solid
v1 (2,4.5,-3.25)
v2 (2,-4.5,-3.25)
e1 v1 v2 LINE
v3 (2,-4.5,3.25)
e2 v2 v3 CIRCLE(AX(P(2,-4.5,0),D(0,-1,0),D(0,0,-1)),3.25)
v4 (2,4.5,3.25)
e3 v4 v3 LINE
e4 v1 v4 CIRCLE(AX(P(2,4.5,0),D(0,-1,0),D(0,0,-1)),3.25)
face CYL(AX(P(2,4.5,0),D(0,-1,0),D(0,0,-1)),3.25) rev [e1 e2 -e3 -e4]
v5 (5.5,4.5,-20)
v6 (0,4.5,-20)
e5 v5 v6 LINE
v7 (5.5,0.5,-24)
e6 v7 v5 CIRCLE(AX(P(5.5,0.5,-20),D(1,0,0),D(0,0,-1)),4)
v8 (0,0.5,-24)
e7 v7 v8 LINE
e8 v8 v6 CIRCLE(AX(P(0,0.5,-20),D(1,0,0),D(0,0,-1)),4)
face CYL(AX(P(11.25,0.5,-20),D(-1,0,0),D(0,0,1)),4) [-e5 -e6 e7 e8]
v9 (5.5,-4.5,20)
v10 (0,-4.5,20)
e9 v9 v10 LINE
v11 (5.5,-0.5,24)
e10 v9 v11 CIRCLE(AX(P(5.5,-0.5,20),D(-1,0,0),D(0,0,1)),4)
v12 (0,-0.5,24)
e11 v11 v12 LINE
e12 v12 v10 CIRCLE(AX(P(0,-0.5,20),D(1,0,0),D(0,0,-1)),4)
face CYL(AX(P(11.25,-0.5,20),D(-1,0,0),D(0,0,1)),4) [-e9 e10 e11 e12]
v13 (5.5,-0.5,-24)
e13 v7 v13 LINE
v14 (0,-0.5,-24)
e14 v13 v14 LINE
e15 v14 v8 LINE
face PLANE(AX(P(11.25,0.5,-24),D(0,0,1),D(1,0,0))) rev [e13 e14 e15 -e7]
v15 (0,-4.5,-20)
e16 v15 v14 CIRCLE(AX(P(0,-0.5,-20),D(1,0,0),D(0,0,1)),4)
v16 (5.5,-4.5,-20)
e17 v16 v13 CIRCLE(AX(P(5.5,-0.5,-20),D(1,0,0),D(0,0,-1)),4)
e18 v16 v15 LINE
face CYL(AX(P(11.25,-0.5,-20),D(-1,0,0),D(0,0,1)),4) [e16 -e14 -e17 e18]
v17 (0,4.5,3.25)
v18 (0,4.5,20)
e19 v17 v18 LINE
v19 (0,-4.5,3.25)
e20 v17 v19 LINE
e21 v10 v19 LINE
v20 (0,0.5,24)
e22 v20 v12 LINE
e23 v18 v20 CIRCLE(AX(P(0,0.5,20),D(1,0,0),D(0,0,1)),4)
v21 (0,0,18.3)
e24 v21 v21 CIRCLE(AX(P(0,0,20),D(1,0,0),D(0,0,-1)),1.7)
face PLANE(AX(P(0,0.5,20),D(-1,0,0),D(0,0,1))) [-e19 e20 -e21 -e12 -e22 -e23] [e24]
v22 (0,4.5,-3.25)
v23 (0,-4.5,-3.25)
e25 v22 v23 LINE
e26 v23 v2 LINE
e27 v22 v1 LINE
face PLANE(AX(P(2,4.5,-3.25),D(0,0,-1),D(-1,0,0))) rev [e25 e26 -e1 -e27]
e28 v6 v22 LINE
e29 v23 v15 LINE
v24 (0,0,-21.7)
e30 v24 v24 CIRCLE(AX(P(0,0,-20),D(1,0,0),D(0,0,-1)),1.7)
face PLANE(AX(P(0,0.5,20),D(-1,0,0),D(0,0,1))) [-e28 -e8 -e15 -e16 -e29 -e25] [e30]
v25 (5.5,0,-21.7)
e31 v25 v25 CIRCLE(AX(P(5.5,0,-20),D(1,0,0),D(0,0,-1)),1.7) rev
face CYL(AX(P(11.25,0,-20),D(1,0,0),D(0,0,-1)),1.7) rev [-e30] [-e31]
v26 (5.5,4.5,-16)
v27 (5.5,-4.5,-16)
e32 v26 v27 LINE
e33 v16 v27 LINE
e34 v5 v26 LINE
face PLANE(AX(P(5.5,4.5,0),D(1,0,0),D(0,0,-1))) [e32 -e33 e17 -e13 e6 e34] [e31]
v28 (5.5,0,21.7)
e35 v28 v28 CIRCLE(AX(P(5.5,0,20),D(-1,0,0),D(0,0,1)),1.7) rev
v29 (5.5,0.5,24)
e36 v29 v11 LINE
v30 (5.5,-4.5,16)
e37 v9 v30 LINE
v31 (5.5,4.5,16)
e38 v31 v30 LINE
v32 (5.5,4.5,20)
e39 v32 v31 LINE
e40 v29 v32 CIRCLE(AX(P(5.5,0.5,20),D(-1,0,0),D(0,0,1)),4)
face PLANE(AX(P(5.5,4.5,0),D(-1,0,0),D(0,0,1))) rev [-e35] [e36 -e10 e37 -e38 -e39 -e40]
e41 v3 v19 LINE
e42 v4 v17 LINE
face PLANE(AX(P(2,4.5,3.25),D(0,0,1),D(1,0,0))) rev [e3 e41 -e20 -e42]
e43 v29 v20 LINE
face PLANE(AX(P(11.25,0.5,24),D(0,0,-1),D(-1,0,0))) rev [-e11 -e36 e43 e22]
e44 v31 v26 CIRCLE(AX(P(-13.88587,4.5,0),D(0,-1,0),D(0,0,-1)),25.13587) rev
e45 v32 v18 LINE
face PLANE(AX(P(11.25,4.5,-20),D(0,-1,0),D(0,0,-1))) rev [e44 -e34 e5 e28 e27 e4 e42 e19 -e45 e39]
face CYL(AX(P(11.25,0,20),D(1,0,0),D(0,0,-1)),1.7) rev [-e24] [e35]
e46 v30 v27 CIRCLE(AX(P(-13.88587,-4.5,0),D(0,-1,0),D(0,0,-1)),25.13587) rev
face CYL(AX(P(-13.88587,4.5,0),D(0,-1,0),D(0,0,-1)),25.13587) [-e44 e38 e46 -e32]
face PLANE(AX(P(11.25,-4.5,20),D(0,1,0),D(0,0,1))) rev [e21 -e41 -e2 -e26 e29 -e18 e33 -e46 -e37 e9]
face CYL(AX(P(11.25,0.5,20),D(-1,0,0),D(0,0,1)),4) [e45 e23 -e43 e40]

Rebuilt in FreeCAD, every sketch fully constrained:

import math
import FreeCAD as App
import Part
import Sketcher
from FreeCAD import Vector
Q = App.Units.Quantity

doc = App.newDocument("Part")
params = doc.addObject("Spreadsheet::Sheet", "Params")
for row, (alias, value) in enumerate([
    ("sketch1_radius", "4 mm"),
    ("sketch1_width", "1 mm"),
    ("sketch1_height", "40 mm"),
    ("pad1_length", "11.25 mm"),
    ("sketch2_width", "2 mm"),
    ("sketch2_radius", "3.25 mm"),
    ("sketch3_diameter", "3.4 mm"),
    ("hole_diameter", "3.4 mm"),
    ("sketch4_height", "8 mm"),
    ("sketch4_height2", "24 mm"),
    ("sketch4_width", "5.75 mm"),
], start=1):
    params.set(f"A{row}", alias)
    params.set(f"B{row}", "=" + value)
    params.setAlias(f"B{row}", alias)

body = doc.addObject("PartDesign::Body", "Body")

# Sketch on YZ plane
sketch1 = doc.addObject("Sketcher::SketchObject", "Sketch")
body.addObject(sketch1)
sketch1.AttachmentSupport = (doc.YZ_Plane, [""])
sketch1.MapMode = "FlatFace"
sketch1.addGeometry([
    Part.LineSegment(Vector(0.5, 24, 0), Vector(-0.5, 24, 0)),  # 0
    Part.ArcOfCircle(Part.Circle(Vector(-0.5, 20, 0), Vector(0, 0, 1), 4), math.radians(90), math.radians(180)),  # 1
    Part.LineSegment(Vector(-4.5, 20, 0), Vector(-4.5, -20, 0)),  # 2
    Part.ArcOfCircle(Part.Circle(Vector(-0.5, -20, 0), Vector(0, 0, 1), 4), math.radians(180), math.radians(270)),  # 3
    Part.LineSegment(Vector(-0.5, -24, 0), Vector(0.5, -24, 0)),  # 4
    Part.ArcOfCircle(Part.Circle(Vector(0.5, -20, 0), Vector(0, 0, 1), 4), math.radians(-90), math.radians(0)),  # 5
    Part.LineSegment(Vector(4.5, -20, 0), Vector(4.5, 20, 0)),  # 6
    Part.ArcOfCircle(Part.Circle(Vector(0.5, 20, 0), Vector(0, 0, 1), 4), math.radians(0), math.radians(90)),  # 7
], False)
sketch1.addConstraint([
    Sketcher.Constraint("Tangent", 0, 2, 1, 1),
    Sketcher.Constraint("Tangent", 1, 2, 2, 1),
    Sketcher.Constraint("Tangent", 2, 2, 3, 1),
    Sketcher.Constraint("Tangent", 3, 2, 4, 1),
    Sketcher.Constraint("Tangent", 4, 2, 5, 1),
    Sketcher.Constraint("Tangent", 5, 2, 6, 1),
    Sketcher.Constraint("Tangent", 6, 2, 7, 1),
    Sketcher.Constraint("Tangent", 7, 2, 0, 1),
    Sketcher.Constraint("Horizontal", 0),
    Sketcher.Constraint("Vertical", 2),
    Sketcher.Constraint("Horizontal", 4),
    Sketcher.Constraint("Vertical", 6),
    Sketcher.Constraint("Equal", 1, 3),
    Sketcher.Constraint("Equal", 3, 5),
    Sketcher.Constraint("Equal", 5, 7),
    Sketcher.Constraint("Symmetric", 1, 3, 5, 3, -1, 1),
    Sketcher.Constraint("Radius", 1, Q("4 mm")),
    Sketcher.Constraint("DistanceX", 0, 2, 0, 1, Q("1 mm")),
    Sketcher.Constraint("DistanceY", 2, 2, 2, 1, Q("40 mm")),
])
sketch1.setExpression("Constraints[16]", "Params.sketch1_radius")
sketch1.setExpression("Constraints[17]", "Params.sketch1_width")
sketch1.setExpression("Constraints[18]", "Params.sketch1_height")
pad1 = doc.addObject("PartDesign::Pad", "Pad")
body.addObject(pad1)
pad1.Profile = sketch1
pad1.setExpression("Length", "Params.pad1_length")

# Sketch on XZ plane
sketch2 = doc.addObject("Sketcher::SketchObject", "Sketch001")
body.addObject(sketch2)
sketch2.AttachmentSupport = (doc.XZ_Plane, [""])
sketch2.MapMode = "FlatFace"
sketch2.AttachmentOffset = App.Placement(Vector(0, 0, 4.5), App.Rotation())
sketch2.addGeometry([
    Part.LineSegment(Vector(2, 3.2, 0), Vector(0, 3.2, 0)),
    Part.LineSegment(Vector(0, 3.2, 0), Vector(0, -3.2, 0)),
    Part.LineSegment(Vector(0, -3.2, 0), Vector(2, -3.2, 0)),
    Part.ArcOfCircle(Part.Circle(Vector(2, 0, 0), Vector(0, 0, 1), 3.2), math.radians(-90), math.radians(90)),
], False)
sketch2.addConstraint([
    Sketcher.Constraint("Coincident", 0, 2, 1, 1),
    Sketcher.Constraint("Coincident", 1, 2, 2, 1),
    Sketcher.Constraint("Tangent", 2, 2, 3, 1),
    Sketcher.Constraint("Tangent", 3, 2, 0, 1),
    Sketcher.Constraint("Horizontal", 0),
    Sketcher.Constraint("Vertical", 1),
    Sketcher.Constraint("Horizontal", 2),
    Sketcher.Constraint("Symmetric", 0, 2, 1, 2, -1, 1),
    Sketcher.Constraint("DistanceX", 0, 2, 0, 1, Q("2 mm")),
    Sketcher.Constraint("Radius", 3, Q("3.25 mm")),
])
sketch2.setExpression("Constraints[8]", "Params.sketch2_width")
sketch2.setExpression("Constraints[9]", "Params.sketch2_radius")
pocket1 = doc.addObject("PartDesign::Pocket", "Pocket")
body.addObject(pocket1)
pocket1.Profile = sketch2
pocket1.Type = "ThroughAll"

# Sketch on YZ plane
sketch3 = doc.addObject("Sketcher::SketchObject", "Sketch002")
body.addObject(sketch3)
sketch3.AttachmentSupport = (doc.YZ_Plane, [""])
sketch3.MapMode = "FlatFace"
sketch3.AttachmentOffset = App.Placement(Vector(0, 0, 11.25), App.Rotation())
sketch3.addGeometry([
    Part.Circle(Vector(0, 20, 0), Vector(0, 0, 1), 1.7),
    Part.Circle(Vector(0, -20, 0), Vector(0, 0, 1), 1.7),
], False)
sketch3.addConstraint([
    Sketcher.Constraint("Equal", 0, 1),
    Sketcher.Constraint("Symmetric", 0, 3, 1, 3, -1, 1),
    Sketcher.Constraint("PointOnObject", 0, 3, -2),
    Sketcher.Constraint("Diameter", 0, Q("3.4 mm")),
    Sketcher.Constraint("DistanceY", -1, 1, 0, 3, Q("20 mm")),
])
sketch3.setExpression("Constraints[3]", "Params.sketch3_diameter")
doc.recompute()
hole = doc.addObject("PartDesign::Hole", "Hole")
body.addObject(hole)
hole.Profile = sketch3
hole.ThreadType = "None"
hole.setExpression("Diameter", "Params.hole_diameter")
hole.DepthType = "ThroughAll"

# Sketch on XZ plane
sketch4 = doc.addObject("Sketcher::SketchObject", "Sketch003")
body.addObject(sketch4)
sketch4.AttachmentSupport = (doc.XZ_Plane, [""])
sketch4.MapMode = "FlatFace"
sketch4.AttachmentOffset = App.Placement(Vector(0, 0, 4.5), App.Rotation())
sketch4.addGeometry([
    Part.LineSegment(Vector(11, 24, 0), Vector(6, 24, 0)),  # 0
    Part.LineSegment(Vector(6, 24, 0), Vector(6, 16, 0)),  # 1
    Part.ArcOfCircle(Part.Circle(Vector(-14, 0, 0), Vector(0, 0, 1), 25), math.radians(0), math.radians(40)),  # 2
    Part.LineSegment(Vector(11, 0, 0), Vector(11, 24, 0)),  # 3
    Part.ArcOfCircle(Part.Circle(Vector(-14, 0, 0), Vector(0, 0, 1), 25), math.radians(-40), math.radians(0)),  # 4
    Part.LineSegment(Vector(6, -16, 0), Vector(6, -24, 0)),  # 5
    Part.LineSegment(Vector(6, -24, 0), Vector(11, -24, 0)),  # 6
    Part.LineSegment(Vector(11, -24, 0), Vector(11, 0, 0)),  # 7
], False)
sketch4.addConstraint([
    Sketcher.Constraint("Coincident", 0, 2, 1, 1),
    Sketcher.Constraint("Coincident", 1, 2, 2, 2),
    Sketcher.Constraint("Tangent", 2, 1, 3, 1),
    Sketcher.Constraint("Coincident", 3, 2, 0, 1),
    Sketcher.Constraint("Coincident", 4, 1, 5, 1),
    Sketcher.Constraint("Coincident", 5, 2, 6, 1),
    Sketcher.Constraint("Coincident", 6, 2, 7, 1),
    Sketcher.Constraint("Tangent", 7, 2, 4, 2),
    Sketcher.Constraint("Horizontal", 0),
    Sketcher.Constraint("Vertical", 1),
    Sketcher.Constraint("Vertical", 3),
    Sketcher.Constraint("Vertical", 5),
    Sketcher.Constraint("Horizontal", 6),
    Sketcher.Constraint("Vertical", 7),
    Sketcher.Constraint("Coincident", 4, 3, 2, 3),
    Sketcher.Constraint("Equal", 2, 4),
    Sketcher.Constraint("Symmetric", 1, 2, 4, 1, -1),
    Sketcher.Constraint("Equal", 1, 5),
    Sketcher.Constraint("DistanceY", 1, 2, 1, 1, Q("8 mm")),
    Sketcher.Constraint("DistanceY", 3, 1, 3, 2, Q("24 mm")),
    Sketcher.Constraint("DistanceX", 0, 2, 0, 1, Q("5.75 mm")),
    Sketcher.Constraint("DistanceX", -1, 1, 0, 2, Q("5.5 mm")),
])
sketch4.setExpression("Constraints[18]", "Params.sketch4_height")
sketch4.setExpression("Constraints[19]", "Params.sketch4_height2")
sketch4.setExpression("Constraints[20]", "Params.sketch4_width")
pocket2 = doc.addObject("PartDesign::Pocket", "Pocket001")
body.addObject(pocket2)
pocket2.Profile = sketch4
pocket2.Type = "ThroughAll"

doc.recompute()
